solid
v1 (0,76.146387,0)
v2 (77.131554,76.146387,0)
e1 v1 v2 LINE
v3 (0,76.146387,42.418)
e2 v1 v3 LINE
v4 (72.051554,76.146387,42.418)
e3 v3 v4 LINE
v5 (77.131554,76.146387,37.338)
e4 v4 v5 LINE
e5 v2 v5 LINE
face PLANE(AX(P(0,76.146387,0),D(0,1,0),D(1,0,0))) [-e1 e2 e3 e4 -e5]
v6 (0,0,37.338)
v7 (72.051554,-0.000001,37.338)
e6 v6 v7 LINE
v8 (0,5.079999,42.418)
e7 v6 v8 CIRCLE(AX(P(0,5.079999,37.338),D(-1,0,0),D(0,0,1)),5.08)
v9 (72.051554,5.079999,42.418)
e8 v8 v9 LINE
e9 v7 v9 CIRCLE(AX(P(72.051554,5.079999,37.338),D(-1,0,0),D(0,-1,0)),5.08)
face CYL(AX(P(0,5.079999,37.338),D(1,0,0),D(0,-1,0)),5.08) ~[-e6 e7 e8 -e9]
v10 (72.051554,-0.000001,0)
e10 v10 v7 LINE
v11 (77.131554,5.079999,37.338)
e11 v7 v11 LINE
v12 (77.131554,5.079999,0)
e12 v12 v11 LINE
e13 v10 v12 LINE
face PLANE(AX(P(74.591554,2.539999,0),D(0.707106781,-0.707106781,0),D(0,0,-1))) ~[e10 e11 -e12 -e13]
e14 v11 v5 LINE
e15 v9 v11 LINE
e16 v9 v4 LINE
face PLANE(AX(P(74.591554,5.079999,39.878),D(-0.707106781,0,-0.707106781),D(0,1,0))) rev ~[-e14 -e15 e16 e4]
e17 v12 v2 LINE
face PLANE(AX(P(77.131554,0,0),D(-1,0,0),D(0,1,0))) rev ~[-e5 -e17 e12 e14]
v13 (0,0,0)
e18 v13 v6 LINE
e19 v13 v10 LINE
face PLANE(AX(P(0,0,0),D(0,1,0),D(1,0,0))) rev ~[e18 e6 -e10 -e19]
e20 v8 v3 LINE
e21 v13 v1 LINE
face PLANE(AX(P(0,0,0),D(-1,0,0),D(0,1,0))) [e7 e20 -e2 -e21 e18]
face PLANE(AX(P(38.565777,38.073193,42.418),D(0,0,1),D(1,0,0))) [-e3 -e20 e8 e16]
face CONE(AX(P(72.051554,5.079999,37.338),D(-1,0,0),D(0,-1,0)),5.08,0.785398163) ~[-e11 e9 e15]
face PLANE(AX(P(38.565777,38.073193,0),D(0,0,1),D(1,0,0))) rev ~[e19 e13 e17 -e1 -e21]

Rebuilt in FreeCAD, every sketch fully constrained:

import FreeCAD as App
import Part
import Sketcher

V = App.Vector
Q = App.Units.Quantity


def edges_at(feature, points):
    """Names of the edges that pass closest to the given points."""
    edges = feature.Shape.Edges
    near = lambda p: min(range(len(edges)), key=lambda i: edges[i].distToShape(Part.Vertex(*p))[0])
    return sorted({f"Edge{near(p) + 1}" for p in points})


def add_polygon(sketch, points):
    """Adds a closed chain of lines whose ends are joined by coincident constraints."""
    first, n = sketch.GeometryCount, len(points)
    for a, b in zip(points, points[1:] + points[:1]):
        sketch.addGeometry(Part.LineSegment(App.Vector(*a, 0), App.Vector(*b, 0)), False)
    for i in range(n):
        sketch.addConstraint(Sketcher.Constraint("Coincident", first + i, 2, first + (i + 1) % n, 1))

doc = App.newDocument("Part")
body = doc.addObject("PartDesign::Body", "Body")

sketch1 = body.newObject("Sketcher::SketchObject", "Sketch")
sketch1.AttachmentSupport = (doc.getObject("XY_Plane"), [""])
sketch1.MapMode = "FlatFace"
add_polygon(sketch1, [(0, 76), (0, 0), (77, 0), (77, 76)])
sketch1.addConstraint([
    Sketcher.Constraint("Vertical", 0),
    Sketcher.Constraint("Horizontal", 1),
    Sketcher.Constraint("Vertical", 2),
    Sketcher.Constraint("Horizontal", 3),
    Sketcher.Constraint("Coincident", 0, 2, -1, 1),
    Sketcher.Constraint("DistanceX", 1, 1, 1, 2, Q("77.131554 mm")),
    Sketcher.Constraint("DistanceY", 0, 2, 0, 1, Q("76.146387 mm")),
])
pad1 = body.newObject("PartDesign::Pad", "Pad")
pad1.Profile = sketch1
pad1.Length = Q("1.67 in")
doc.recompute()

fillet = body.newObject("PartDesign::Fillet", "Fillet")
fillet.Base = (pad1, edges_at(pad1, [(38.566, 0, 42.418)]))
fillet.Radius = Q("0.2 in")
doc.recompute()

chamfer = body.newObject("PartDesign::Chamfer", "Chamfer")
chamfer.Base = (fillet, edges_at(fillet, [(77.132, 40.613, 42.418)]))
chamfer.Size = Q("0.2 in")

doc.recompute()
